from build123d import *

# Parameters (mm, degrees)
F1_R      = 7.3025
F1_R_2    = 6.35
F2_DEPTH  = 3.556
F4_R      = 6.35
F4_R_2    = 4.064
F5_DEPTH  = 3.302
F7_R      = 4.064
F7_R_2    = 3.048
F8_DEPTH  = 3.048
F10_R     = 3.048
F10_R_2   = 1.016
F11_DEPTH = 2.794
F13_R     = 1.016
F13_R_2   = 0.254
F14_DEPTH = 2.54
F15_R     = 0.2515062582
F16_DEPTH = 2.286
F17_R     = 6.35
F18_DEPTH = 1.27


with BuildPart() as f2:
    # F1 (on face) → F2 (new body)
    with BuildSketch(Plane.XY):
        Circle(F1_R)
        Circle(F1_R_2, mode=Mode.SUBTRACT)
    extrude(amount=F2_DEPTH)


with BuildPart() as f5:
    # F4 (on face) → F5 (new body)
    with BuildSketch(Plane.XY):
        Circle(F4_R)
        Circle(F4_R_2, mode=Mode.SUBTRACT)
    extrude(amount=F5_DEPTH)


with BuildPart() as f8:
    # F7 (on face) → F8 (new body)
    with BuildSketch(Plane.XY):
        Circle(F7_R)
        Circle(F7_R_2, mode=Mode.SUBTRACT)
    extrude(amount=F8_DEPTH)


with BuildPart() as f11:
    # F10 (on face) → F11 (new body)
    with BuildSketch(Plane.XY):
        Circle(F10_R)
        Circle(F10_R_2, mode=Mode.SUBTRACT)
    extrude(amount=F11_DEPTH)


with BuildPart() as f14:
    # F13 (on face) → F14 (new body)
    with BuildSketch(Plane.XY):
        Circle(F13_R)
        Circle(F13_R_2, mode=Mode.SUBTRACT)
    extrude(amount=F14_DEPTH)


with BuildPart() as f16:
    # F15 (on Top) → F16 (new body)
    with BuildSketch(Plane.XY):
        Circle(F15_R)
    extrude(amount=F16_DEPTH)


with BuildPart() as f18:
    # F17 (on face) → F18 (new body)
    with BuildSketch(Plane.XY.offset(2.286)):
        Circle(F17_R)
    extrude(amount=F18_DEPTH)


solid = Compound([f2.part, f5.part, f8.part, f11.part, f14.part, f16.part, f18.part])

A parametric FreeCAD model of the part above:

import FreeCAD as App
import Part
import Sketcher
Q = App.Units.Quantity

doc = App.newDocument("Part")
body = doc.addObject("PartDesign::Body", "Body")

sketch1 = body.newObject("Sketcher::SketchObject", "Sketch")
sketch1.AttachmentSupport = (doc.getObject("XY_Plane"), [""])
sketch1.MapMode = "FlatFace"
sketch1.addGeometry(Part.Circle(App.Vector(0, 0, 0), App.Vector(0, 0, 1), 7.3025), False)
sketch1.addGeometry(Part.Circle(App.Vector(0, 0, 0), App.Vector(0, 0, 1), 6.35), False)
sketch1.addConstraint(Sketcher.Constraint("Coincident", 0, 3, -1, 1))
sketch1.addConstraint(Sketcher.Constraint("Coincident", 1, 3, -1, 1))
sketch1.addConstraint(Sketcher.Constraint("Diameter", 1, Q("0.5 in")))
sketch1.addConstraint(Sketcher.Constraint("Diameter", 0, Q("0.575 in")))
pad1 = body.newObject("PartDesign::Pad", "Pad")
pad1.Profile = sketch1
pad1.Length = Q("0.14 in")
body2 = doc.addObject("PartDesign::Body", "Body001")

sketch2 = body2.newObject("Sketcher::SketchObject", "Sketch001")
sketch2.AttachmentSupport = (doc.getObject("XY_Plane001"), [""])
sketch2.MapMode = "FlatFace"
sketch2.addGeometry(Part.Circle(App.Vector(0, 0, 0), App.Vector(0, 0, 1), 6.35), False)
sketch2.addGeometry(Part.Circle(App.Vector(0, 0, 0), App.Vector(0, 0, 1), 4.064), False)
sketch2.addConstraint(Sketcher.Constraint("Coincident", 0, 3, -1, 1))
sketch2.addConstraint(Sketcher.Constraint("Coincident", 1, 3, -1, 1))
sketch2.addConstraint(Sketcher.Constraint("Diameter", 0, Q("0.5 in")))
sketch2.addConstraint(Sketcher.Constraint("Diameter", 1, Q("0.32 in")))
pad2 = body2.newObject("PartDesign::Pad", "Pad001")
pad2.Profile = sketch2
pad2.Length = Q("0.13 in")
body3 = doc.addObject("PartDesign::Body", "Body002")

sketch3 = body3.newObject("Sketcher::SketchObject", "Sketch002")
sketch3.AttachmentSupport = (doc.getObject("XY_Plane002"), [""])
sketch3.MapMode = "FlatFace"
sketch3.addGeometry(Part.Circle(App.Vector(0, 0, 0), App.Vector(0, 0, 1), 4.064), False)
sketch3.addGeometry(Part.Circle(App.Vector(0, 0, 0), App.Vector(0, 0, 1), 3.048), False)
sketch3.addConstraint(Sketcher.Constraint("Coincident", 0, 3, -1, 1))
sketch3.addConstraint(Sketcher.Constraint("Coincident", 1, 3, -1, 1))
sketch3.addConstraint(Sketcher.Constraint("Diameter", 0, Q("0.32 in")))
sketch3.addConstraint(Sketcher.Constraint("Diameter", 1, Q("0.24 in")))
pad3 = body3.newObject("PartDesign::Pad", "Pad002")
pad3.Profile = sketch3
pad3.Length = Q("0.12 in")
body4 = doc.addObject("PartDesign::Body", "Body003")

sketch4 = body4.newObject("Sketcher::SketchObject", "Sketch003")
sketch4.AttachmentSupport = (doc.getObject("XY_Plane003"), [""])
sketch4.MapMode = "FlatFace"
sketch4.addGeometry(Part.Circle(App.Vector(0, 0, 0), App.Vector(0, 0, 1), 3.048), False)
sketch4.addGeometry(Part.Circle(App.Vector(0, 0, 0), App.Vector(0, 0, 1), 1.016), False)
sketch4.addConstraint(Sketcher.Constraint("Coincident", 0, 3, -1, 1))
sketch4.addConstraint(Sketcher.Constraint("Coincident", 1, 3, -1, 1))
sketch4.addConstraint(Sketcher.Constraint("Diameter", 0, Q("0.24 in")))
sketch4.addConstraint(Sketcher.Constraint("Diameter", 1, Q("0.08 in")))
pad4 = body4.newObject("PartDesign::Pad", "Pad003")
pad4.Profile = sketch4
pad4.Length = Q("0.11 in")
body5 = doc.addObject("PartDesign::Body", "Body004")

sketch5 = body5.newObject("Sketcher::SketchObject", "Sketch004")
sketch5.AttachmentSupport = (doc.getObject("XY_Plane004"), [""])
sketch5.MapMode = "FlatFace"
sketch5.addGeometry(Part.Circle(App.Vector(0, 0, 0), App.Vector(0, 0, 1), 1.016), False)
sketch5.addGeometry(Part.Circle(App.Vector(0, 0, 0), App.Vector(0, 0, 1), 0.254), False)
sketch5.addConstraint(Sketcher.Constraint("Coincident", 0, 3, -1, 1))
sketch5.addConstraint(Sketcher.Constraint("Coincident", 1, 3, -1, 1))
sketch5.addConstraint(Sketcher.Constraint("Diameter", 0, Q("0.08 in")))
sketch5.addConstraint(Sketcher.Constraint("Diameter", 1, Q("0.02 in")))
pad5 = body5.newObject("PartDesign::Pad", "Pad004")
pad5.Profile = sketch5
pad5.Length = Q("0.1 in")
body6 = doc.addObject("PartDesign::Body", "Body005")

sketch6 = body6.newObject("Sketcher::SketchObject", "Sketch005")
sketch6.AttachmentSupport = (doc.getObject("XY_Plane005"), [""])
sketch6.MapMode = "FlatFace"
sketch6.addGeometry(Part.Circle(App.Vector(0, 0, 0), App.Vector(0, 0, 1), 0.251506), False)
sketch6.addConstraint(Sketcher.Constraint("Coincident", 0, 3, -1, 1))
sketch6.addConstraint(Sketcher.Constraint("Diameter", 0, 0.503013))
pad6 = body6.newObject("PartDesign::Pad", "Pad005")
pad6.Profile = sketch6
pad6.Length = Q("0.09 in")
body7 = doc.addObject("PartDesign::Body", "Body006")

sketch7 = body7.newObject("Sketcher::SketchObject", "Sketch006")
sketch7.AttachmentSupport = (doc.getObject("XY_Plane006"), [""])
sketch7.MapMode = "FlatFace"
sketch7.AttachmentOffset = App.Placement(App.Vector(0, 0, 0.09 * 25.4), App.Rotation())
sketch7.addGeometry(Part.Circle(App.Vector(0, 0, 0), App.Vector(0, 0, 1), 6.35), False)
sketch7.addConstraint(Sketcher.Constraint("Coincident", 0, 3, -1, 1))
sketch7.addConstraint(Sketcher.Constraint("Diameter", 0, Q("0.5 in")))
pad7 = body7.newObject("PartDesign::Pad", "Pad006")
pad7.Profile = sketch7
pad7.Length = Q("0.05 in")

doc.recompute()
